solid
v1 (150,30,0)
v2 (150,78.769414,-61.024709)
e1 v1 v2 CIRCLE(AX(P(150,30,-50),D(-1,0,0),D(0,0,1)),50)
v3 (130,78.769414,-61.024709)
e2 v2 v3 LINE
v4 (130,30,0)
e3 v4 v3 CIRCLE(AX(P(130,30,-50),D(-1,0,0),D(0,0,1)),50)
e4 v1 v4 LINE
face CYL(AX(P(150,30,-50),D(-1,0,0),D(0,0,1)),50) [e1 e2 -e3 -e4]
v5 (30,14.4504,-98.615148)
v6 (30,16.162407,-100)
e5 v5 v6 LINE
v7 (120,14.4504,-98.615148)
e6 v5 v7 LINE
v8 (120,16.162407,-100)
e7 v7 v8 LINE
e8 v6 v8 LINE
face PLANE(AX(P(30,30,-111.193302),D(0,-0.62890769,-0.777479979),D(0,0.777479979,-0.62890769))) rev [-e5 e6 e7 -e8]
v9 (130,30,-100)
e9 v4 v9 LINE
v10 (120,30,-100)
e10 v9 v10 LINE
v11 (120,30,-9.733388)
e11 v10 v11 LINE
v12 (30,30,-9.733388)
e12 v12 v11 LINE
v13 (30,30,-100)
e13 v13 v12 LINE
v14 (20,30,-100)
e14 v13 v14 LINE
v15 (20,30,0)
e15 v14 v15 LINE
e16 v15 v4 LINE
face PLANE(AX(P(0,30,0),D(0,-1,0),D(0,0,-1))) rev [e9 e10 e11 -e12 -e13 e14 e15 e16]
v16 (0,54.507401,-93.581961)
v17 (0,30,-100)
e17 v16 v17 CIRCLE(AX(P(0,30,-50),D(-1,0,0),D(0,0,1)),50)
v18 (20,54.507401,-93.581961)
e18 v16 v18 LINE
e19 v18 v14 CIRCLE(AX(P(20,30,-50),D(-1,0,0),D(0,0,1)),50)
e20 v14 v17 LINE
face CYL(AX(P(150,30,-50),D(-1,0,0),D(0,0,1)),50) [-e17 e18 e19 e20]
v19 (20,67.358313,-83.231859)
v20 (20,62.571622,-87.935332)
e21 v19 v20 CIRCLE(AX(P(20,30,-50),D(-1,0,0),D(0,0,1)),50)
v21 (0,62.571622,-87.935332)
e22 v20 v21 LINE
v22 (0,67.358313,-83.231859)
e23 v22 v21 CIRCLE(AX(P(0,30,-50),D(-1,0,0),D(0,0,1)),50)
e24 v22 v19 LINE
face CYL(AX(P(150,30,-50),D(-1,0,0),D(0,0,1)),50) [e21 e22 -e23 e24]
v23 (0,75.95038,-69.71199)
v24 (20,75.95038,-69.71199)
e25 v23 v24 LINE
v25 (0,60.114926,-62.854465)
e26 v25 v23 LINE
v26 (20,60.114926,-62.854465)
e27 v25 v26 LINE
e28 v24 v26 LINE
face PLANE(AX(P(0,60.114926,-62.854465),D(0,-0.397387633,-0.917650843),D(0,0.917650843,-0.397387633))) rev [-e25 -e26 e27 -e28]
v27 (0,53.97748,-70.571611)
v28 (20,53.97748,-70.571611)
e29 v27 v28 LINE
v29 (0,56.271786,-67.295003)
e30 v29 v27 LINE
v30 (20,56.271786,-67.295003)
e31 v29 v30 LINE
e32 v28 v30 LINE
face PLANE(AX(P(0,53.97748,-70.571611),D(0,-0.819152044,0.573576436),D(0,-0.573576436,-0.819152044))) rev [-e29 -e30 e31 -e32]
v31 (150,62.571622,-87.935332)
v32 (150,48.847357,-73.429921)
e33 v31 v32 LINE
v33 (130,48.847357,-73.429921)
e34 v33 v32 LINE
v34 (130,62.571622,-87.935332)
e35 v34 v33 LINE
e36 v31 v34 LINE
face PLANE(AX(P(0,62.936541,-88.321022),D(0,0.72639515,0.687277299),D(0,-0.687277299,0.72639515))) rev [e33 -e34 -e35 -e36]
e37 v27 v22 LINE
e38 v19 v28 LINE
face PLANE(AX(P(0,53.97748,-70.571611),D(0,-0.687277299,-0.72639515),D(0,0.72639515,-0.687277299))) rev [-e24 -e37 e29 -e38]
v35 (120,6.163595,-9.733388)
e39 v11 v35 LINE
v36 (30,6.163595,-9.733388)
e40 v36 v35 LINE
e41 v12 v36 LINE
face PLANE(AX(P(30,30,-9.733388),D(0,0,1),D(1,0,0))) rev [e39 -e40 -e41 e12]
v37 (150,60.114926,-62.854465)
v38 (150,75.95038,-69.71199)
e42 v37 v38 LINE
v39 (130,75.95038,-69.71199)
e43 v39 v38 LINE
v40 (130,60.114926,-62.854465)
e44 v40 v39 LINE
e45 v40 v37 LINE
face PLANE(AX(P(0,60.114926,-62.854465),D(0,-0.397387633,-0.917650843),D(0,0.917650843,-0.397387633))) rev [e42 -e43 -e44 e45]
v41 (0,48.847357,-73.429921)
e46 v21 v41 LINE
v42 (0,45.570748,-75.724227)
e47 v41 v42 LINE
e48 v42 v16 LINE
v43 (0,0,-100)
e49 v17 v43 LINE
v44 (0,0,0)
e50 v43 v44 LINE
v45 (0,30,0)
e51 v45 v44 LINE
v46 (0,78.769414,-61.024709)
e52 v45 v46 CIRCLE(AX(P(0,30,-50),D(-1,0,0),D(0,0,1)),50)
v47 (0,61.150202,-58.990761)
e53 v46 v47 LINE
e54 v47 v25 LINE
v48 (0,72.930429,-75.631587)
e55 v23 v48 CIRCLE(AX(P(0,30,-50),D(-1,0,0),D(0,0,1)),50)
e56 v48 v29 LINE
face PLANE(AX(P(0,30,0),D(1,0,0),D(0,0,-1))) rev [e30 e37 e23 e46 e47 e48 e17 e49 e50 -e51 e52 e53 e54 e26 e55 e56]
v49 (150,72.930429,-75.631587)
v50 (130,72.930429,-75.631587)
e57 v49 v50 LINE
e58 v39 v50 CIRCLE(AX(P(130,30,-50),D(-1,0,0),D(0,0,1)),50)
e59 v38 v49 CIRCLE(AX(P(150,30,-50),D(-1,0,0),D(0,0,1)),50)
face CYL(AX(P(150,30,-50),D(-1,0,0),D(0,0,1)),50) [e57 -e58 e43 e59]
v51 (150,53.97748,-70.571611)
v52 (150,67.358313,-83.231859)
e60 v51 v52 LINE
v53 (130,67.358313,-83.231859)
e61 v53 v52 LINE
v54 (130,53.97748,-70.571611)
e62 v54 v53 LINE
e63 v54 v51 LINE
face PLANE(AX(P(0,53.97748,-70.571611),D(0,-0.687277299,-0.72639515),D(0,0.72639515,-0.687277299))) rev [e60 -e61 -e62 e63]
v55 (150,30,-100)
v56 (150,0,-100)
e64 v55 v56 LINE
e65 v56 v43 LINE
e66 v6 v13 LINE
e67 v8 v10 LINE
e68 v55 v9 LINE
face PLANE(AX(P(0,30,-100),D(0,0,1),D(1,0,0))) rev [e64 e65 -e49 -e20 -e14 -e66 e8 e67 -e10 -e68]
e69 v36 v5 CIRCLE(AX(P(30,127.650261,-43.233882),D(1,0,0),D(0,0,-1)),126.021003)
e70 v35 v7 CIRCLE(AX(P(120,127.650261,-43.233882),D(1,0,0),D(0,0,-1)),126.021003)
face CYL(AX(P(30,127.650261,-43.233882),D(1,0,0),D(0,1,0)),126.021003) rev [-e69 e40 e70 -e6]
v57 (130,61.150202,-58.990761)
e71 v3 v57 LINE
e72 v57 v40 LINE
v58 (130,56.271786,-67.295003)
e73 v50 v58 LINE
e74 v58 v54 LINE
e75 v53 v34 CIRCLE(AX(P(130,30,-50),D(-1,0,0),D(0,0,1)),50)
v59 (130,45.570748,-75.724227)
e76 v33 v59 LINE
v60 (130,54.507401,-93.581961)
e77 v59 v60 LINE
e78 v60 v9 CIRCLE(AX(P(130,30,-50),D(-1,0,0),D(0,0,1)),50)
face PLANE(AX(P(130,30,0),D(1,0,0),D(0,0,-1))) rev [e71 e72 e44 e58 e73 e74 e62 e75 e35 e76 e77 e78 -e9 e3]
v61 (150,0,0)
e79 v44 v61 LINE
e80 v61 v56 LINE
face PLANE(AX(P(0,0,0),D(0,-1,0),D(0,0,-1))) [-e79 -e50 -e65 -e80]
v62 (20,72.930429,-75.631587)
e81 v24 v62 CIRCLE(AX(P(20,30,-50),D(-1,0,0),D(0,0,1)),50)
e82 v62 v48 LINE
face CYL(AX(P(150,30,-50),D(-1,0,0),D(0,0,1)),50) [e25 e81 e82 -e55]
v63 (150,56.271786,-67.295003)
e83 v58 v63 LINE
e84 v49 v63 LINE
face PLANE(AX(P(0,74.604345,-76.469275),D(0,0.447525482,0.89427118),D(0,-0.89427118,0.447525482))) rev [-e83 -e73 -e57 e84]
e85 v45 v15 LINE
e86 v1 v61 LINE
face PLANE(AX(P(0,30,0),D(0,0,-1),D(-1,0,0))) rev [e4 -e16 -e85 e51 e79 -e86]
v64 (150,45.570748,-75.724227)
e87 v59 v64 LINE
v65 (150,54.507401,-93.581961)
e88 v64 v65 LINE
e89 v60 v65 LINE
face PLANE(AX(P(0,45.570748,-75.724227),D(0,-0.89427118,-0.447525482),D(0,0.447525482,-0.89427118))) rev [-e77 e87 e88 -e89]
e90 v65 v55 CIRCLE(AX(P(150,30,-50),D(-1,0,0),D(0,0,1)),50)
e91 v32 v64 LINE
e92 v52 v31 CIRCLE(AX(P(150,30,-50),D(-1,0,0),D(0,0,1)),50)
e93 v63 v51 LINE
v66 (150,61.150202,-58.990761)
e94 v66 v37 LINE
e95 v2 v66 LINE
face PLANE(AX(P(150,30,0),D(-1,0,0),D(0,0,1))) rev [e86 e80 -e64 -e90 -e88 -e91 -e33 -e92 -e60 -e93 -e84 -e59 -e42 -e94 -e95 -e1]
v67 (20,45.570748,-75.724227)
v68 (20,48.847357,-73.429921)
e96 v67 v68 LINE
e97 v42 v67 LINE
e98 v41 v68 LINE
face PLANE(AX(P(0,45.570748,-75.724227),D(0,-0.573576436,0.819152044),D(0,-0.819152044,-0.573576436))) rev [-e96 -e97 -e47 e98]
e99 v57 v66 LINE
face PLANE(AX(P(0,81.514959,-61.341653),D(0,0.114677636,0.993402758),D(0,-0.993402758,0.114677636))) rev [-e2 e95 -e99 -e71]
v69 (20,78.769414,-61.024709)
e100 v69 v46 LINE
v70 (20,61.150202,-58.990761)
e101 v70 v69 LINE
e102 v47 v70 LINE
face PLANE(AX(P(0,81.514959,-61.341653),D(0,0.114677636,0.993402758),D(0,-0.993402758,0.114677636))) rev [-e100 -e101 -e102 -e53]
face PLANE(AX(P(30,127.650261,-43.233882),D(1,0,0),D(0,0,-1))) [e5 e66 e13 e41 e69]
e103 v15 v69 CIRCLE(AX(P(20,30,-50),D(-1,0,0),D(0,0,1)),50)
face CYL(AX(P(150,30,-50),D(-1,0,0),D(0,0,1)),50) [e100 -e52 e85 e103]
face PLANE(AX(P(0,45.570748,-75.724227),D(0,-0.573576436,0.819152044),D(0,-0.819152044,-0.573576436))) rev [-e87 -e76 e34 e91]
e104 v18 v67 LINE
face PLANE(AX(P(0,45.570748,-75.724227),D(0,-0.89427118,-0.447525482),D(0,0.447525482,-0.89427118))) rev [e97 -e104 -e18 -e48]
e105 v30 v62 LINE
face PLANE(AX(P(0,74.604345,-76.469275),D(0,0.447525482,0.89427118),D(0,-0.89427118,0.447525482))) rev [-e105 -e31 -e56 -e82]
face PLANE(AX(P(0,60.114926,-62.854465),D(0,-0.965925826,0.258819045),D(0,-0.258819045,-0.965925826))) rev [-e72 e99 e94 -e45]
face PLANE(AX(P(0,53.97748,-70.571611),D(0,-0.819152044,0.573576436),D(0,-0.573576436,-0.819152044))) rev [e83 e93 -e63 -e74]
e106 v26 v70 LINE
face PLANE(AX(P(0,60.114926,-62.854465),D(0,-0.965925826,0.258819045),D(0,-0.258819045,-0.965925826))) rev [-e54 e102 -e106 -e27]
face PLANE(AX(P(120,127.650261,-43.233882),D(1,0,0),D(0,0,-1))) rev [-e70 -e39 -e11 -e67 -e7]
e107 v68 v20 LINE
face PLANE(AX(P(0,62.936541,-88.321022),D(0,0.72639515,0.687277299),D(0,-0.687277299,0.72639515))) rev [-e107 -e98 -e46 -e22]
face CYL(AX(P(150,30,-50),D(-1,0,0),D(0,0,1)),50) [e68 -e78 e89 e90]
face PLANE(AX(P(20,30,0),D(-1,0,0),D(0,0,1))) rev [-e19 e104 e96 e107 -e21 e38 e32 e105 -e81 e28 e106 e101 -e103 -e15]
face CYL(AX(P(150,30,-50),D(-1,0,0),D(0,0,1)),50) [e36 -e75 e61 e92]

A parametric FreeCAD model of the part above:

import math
import FreeCAD as App
import Part
import Sketcher
from FreeCAD import Vector
Q = App.Units.Quantity

doc = App.newDocument("Part")
body = doc.addObject("PartDesign::Body", "Body")

# Sketch on XZ plane
sketch1 = body.newObject("Sketcher::SketchObject", "Sketch")
sketch1.AttachmentSupport = (doc.getObject("XZ_Plane"), [""])
sketch1.MapMode = "FlatFace"
sketch1.addGeometry([
    Part.LineSegment(Vector(0, -100, 0), Vector(0, 0, 0)),
    Part.LineSegment(Vector(0, 0, 0), Vector(150, 0, 0)),
    Part.LineSegment(Vector(150, 0, 0), Vector(150, -100, 0)),
    Part.LineSegment(Vector(150, -100, 0), Vector(0, -100, 0)),
], False)
sketch1.addConstraint([
    Sketcher.Constraint("Coincident", 0, 2, 1, 1),
    Sketcher.Constraint("Coincident", 1, 2, 2, 1),
    Sketcher.Constraint("Coincident", 2, 2, 3, 1),
    Sketcher.Constraint("Coincident", 3, 2, 0, 1),
    Sketcher.Constraint("Vertical", 0),
    Sketcher.Constraint("Horizontal", 1),
    Sketcher.Constraint("Vertical", 2),
    Sketcher.Constraint("Horizontal", 3),
    Sketcher.Constraint("Coincident", 0, 2, -1, 1),
    Sketcher.Constraint("DistanceX", 1, 1, 1, 2, Q("150 mm")),
    Sketcher.Constraint("DistanceY", 0, 1, 0, 2, Q("100 mm")),
])
pad1 = body.newObject("PartDesign::Pad", "Pad")
pad1.Profile = sketch1
pad1.Length = 30
pad1.Reversed = True

# Sketch on XZ plane
sketch2 = body.newObject("Sketcher::SketchObject", "Sketch001")
sketch2.AttachmentSupport = (doc.getObject("XZ_Plane"), [""])
sketch2.MapMode = "FlatFace"
sketch2.AttachmentOffset = App.Placement(Vector(0, 0, -30), App.Rotation())
sketch2.addGeometry([
    Part.LineSegment(Vector(130, -100, 0), Vector(130, -50, 0)),  # 0
    Part.LineSegment(Vector(130, -50, 0), Vector(150, -50, 0)),  # 1
    Part.LineSegment(Vector(150, -50, 0), Vector(150, -100, 0)),  # 2
    Part.LineSegment(Vector(150, -100, 0), Vector(130, -100, 0)),  # 3
    Part.LineSegment(Vector(0, -100, 0), Vector(0, -50, 0)),  # 4
    Part.LineSegment(Vector(0, -50, 0), Vector(20, -50, 0)),  # 5
    Part.LineSegment(Vector(20, -50, 0), Vector(20, -100, 0)),  # 6
    Part.LineSegment(Vector(20, -100, 0), Vector(0, -100, 0)),  # 7
], False)
sketch2.addGeometry(Part.LineSegment(Vector(0, -50, 0), Vector(150, -50, 0)), True)  # axis
sketch2.addConstraint([
    Sketcher.Constraint("Coincident", 0, 2, 1, 1),
    Sketcher.Constraint("Coincident", 1, 2, 2, 1),
    Sketcher.Constraint("Coincident", 2, 2, 3, 1),
    Sketcher.Constraint("Coincident", 3, 2, 0, 1),
    Sketcher.Constraint("Coincident", 4, 2, 5, 1),
    Sketcher.Constraint("Coincident", 5, 2, 6, 1),
    Sketcher.Constraint("Coincident", 6, 2, 7, 1),
    Sketcher.Constraint("Coincident", 7, 2, 4, 1),
    Sketcher.Constraint("Vertical", 0),
    Sketcher.Constraint("Horizontal", 1),
    Sketcher.Constraint("Vertical", 2),
    Sketcher.Constraint("Horizontal", 3),
    Sketcher.Constraint("Vertical", 4),
    Sketcher.Constraint("Horizontal", 5),
    Sketcher.Constraint("Vertical", 6),
    Sketcher.Constraint("Horizontal", 7),
    Sketcher.Constraint("Horizontal", 8),
    Sketcher.Constraint("Coincident", 8, 1, 4, 2),
    Sketcher.Constraint("Coincident", 8, 2, 1, 2),
    Sketcher.Constraint("PointOnObject", 4, 2, -2),
    Sketcher.Constraint("Horizontal", 3, 2, 6, 2),
    Sketcher.Constraint("Equal", 3, 5),
    Sketcher.Constraint("DistanceX", 1, 1, 1, 2, Q("20 mm")),
    Sketcher.Constraint("DistanceX", 8, 1, 8, 2, Q("150 mm")),
    Sketcher.Constraint("DistanceY", 0, 1, 0, 2, Q("50 mm")),
    Sketcher.Constraint("DistanceY", 0, 2, -1, 1, Q("50 mm")),
])
revolution = body.newObject("PartDesign::Revolution", "Revolution")
revolution.Profile = sketch2
revolution.ReferenceAxis = (sketch2, ["Axis0"])
revolution.Angle = 180

# Sketch on YZ plane
sketch3 = body.newObject("Sketcher::SketchObject", "Sketch002")
sketch3.AttachmentSupport = (doc.getObject("YZ_Plane"), [""])
sketch3.MapMode = "FlatFace"
sketch3.AttachmentOffset = App.Placement(Vector(0, 0, 150), App.Rotation())
sketch3.addGeometry([
    Part.LineSegment(Vector(54.745021, -94.056786, 0), Vector(62.936541, -88.321022, 0)),
    Part.LineSegment(Vector(62.936541, -88.321022, 0), Vector(48.847357, -73.429921, 0)),
    Part.LineSegment(Vector(48.847357, -73.429921, 0), Vector(45.570748, -75.724227, 0)),
    Part.LineSegment(Vector(45.570748, -75.724227, 0), Vector(54.745021, -94.056786, 0)),
], False)
sketch3.addConstraint([
    Sketcher.Constraint("Coincident", 0, 2, 1, 1),
    Sketcher.Constraint("Coincident", 1, 2, 2, 1),
    Sketcher.Constraint("Coincident", 2, 2, 3, 1),
    Sketcher.Constraint("Coincident", 3, 2, 0, 1),
    Sketcher.Constraint("Parallel", 0, 2),
    Sketcher.Constraint("Equal", 1, 3),
    Sketcher.Constraint("Angle", 0, Q("35 deg")),
    Sketcher.Constraint("Distance", 0, Q("10 mm")),
    Sketcher.Constraint("Distance", 2, Q("4 mm")),
    Sketcher.Constraint("Distance", 1, Q("20.5 mm")),
    Sketcher.Constraint("DistanceX", -1, 1, 0, 2, Q("62.936541 mm")),
    Sketcher.Constraint("DistanceY", 0, 2, -1, 1, Q("88.321022 mm")),
])
pocket1 = body.newObject("PartDesign::Pocket", "Pocket")
pocket1.Profile = sketch3
pocket1.Type = "ThroughAll"
doc.recompute()

datumline = body.newObject("PartDesign::Line", "DatumLine")
datumline.Placement = App.Placement(Vector(0, 35.163147, -49.309446), App.Rotation(Vector(0, 0, 1), Vector(1, 0, 0)))
polarpattern = body.newObject("PartDesign::PolarPattern", "PolarPattern")
polarpattern.Originals = [pocket1]
polarpattern.Axis = (datumline, [""])
polarpattern.Angle = 40
polarpattern.Occurrences = 3
body.Tip = polarpattern

# Sketch on YZ plane
sketch4 = body.newObject("Sketcher::SketchObject", "Sketch003")
sketch4.AttachmentSupport = (doc.getObject("YZ_Plane"), [""])
sketch4.MapMode = "FlatFace"
sketch4.AttachmentOffset = App.Placement(Vector(0, 0, 120), App.Rotation())
sketch4.addGeometry([
    Part.LineSegment(Vector(30, -111.193302, 0), Vector(30, -9.733388, 0)),
    Part.LineSegment(Vector(30, -9.733388, 0), Vector(6.163595, -9.733388, 0)),
    Part.ArcOfCircle(Part.Circle(Vector(127.650261, -43.233882, 0), Vector(0, 0, 1), 126.021003), math.radians(164.583567), math.radians(206.069471)),
    Part.LineSegment(Vector(14.4504, -98.615148, 0), Vector(30, -111.193302, 0)),
], False)
sketch4.addConstraint([
    Sketcher.Constraint("Coincident", 0, 2, 1, 1),
    Sketcher.Constraint("Coincident", 1, 2, 2, 1),
    Sketcher.Constraint("Coincident", 2, 2, 3, 1),
    Sketcher.Constraint("Coincident", 3, 2, 0, 1),
    Sketcher.Constraint("Vertical", 0),
    Sketcher.Constraint("Horizontal", 1),
    Sketcher.Constraint("Distance", 3, Q("20 mm")),
    Sketcher.Constraint("DistanceX", -1, 1, 0, 2, Q("30 mm")),
    Sketcher.Constraint("Radius", 2, Q("126.021003 mm")),
    Sketcher.Constraint("DistanceX", -1, 1, 2, 2, Q("14.4504 mm")),
    Sketcher.Constraint("DistanceX", 1, 2, 1, 1, Q("23.836405 mm")),
    Sketcher.Constraint("DistanceY", 0, 1, 0, 2, Q("101.459915 mm")),
    Sketcher.Constraint("DistanceY", 2, 3, -1, 1, Q("43.233882 mm")),
])
pocket2 = body.newObject("PartDesign::Pocket", "Pocket001")
pocket2.Profile = sketch4
pocket2.Length = 90

doc.recompute()
